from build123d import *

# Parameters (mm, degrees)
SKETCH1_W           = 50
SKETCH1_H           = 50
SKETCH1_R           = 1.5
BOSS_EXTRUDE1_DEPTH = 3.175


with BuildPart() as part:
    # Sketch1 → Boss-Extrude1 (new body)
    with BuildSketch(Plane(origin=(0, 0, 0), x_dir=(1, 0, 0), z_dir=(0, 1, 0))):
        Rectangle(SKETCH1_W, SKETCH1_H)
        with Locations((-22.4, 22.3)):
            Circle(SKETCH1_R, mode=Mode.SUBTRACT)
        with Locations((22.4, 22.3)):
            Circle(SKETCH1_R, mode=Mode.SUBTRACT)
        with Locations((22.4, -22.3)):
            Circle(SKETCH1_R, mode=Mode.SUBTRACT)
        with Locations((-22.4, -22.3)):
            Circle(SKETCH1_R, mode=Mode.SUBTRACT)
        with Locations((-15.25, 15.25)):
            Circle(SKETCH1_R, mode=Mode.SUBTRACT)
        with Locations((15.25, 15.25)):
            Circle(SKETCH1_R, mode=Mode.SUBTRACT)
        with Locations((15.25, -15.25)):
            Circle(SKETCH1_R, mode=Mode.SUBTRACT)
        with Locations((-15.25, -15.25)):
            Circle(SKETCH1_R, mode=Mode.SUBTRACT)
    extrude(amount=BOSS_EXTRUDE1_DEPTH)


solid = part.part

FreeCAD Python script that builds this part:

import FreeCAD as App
import Part
import Sketcher


def add_polygon(sketch, points):
    """Adds a closed chain of lines whose ends are joined by coincident constraints."""
    first, n = sketch.GeometryCount, len(points)
    for a, b in zip(points, points[1:] + points[:1]):
        sketch.addGeometry(Part.LineSegment(App.Vector(*a, 0), App.Vector(*b, 0)), False)
    for i in range(n):
        sketch.addConstraint(Sketcher.Constraint("Coincident", first + i, 2, first + (i + 1) % n, 1))

doc = App.newDocument("Part")
params = doc.addObject("Spreadsheet::Sheet", "Params")
for row, (alias, value) in enumerate([
    ("sketch1_diameter", "3 mm"),
    ("sketch1_width", "50 mm"),
    ("pad1_length", "3.175 mm"),
], start=1):
    params.set(f"A{row}", alias)
    params.set(f"B{row}", "=" + value)
    params.setAlias(f"B{row}", alias)

body = doc.addObject("PartDesign::Body", "Body")

# Sketch on XZ plane
sketch1 = doc.addObject("Sketcher::SketchObject", "Sketch")
body.addObject(sketch1)
sketch1.AttachmentSupport = (doc.XZ_Plane, [""])
sketch1.MapMode = "FlatFace"
add_polygon(sketch1, [(-25, -25), (-25, 25), (25, 25), (25, -25)])  # lines 0-3
sketch1.addGeometry(Part.Circle(App.Vector(-22.4, 22.3, 0), App.Vector(0, 0, 1), 1.5), False)  # 4
sketch1.addGeometry(Part.Circle(App.Vector(-15.2, 15.2, 0), App.Vector(0, 0, 1), 1.5), False)  # 5
sketch1.addGeometry(Part.Circle(App.Vector(22.4, 22.3, 0), App.Vector(0, 0, 1), 1.5), False)  # 6
sketch1.addGeometry(Part.Circle(App.Vector(15.2, 15.2, 0), App.Vector(0, 0, 1), 1.5), False)  # 7
sketch1.addGeometry(Part.Circle(App.Vector(-15.2, -15.2, 0), App.Vector(0, 0, 1), 1.5), False)  # 8
sketch1.addGeometry(Part.Circle(App.Vector(-22.4, -22.3, 0), App.Vector(0, 0, 1), 1.5), False)  # 9
sketch1.addGeometry(Part.Circle(App.Vector(15.2, -15.2, 0), App.Vector(0, 0, 1), 1.5), False)  # 10
sketch1.addGeometry(Part.Circle(App.Vector(22.4, -22.3, 0), App.Vector(0, 0, 1), 1.5), False)  # 11
sketch1.addConstraint([
    Sketcher.Constraint("Vertical", 0),
    Sketcher.Constraint("Horizontal", 1),
    Sketcher.Constraint("Vertical", 2),
    Sketcher.Constraint("Horizontal", 3),
    Sketcher.Constraint("Equal", 4, 5),
    Sketcher.Constraint("Equal", 5, 6),
    Sketcher.Constraint("Equal", 6, 7),
    Sketcher.Constraint("Equal", 7, 8),
    Sketcher.Constraint("Equal", 8, 9),
    Sketcher.Constraint("Equal", 9, 10),
    Sketcher.Constraint("Equal", 10, 11),
    Sketcher.Constraint("Symmetric", 7, 3, 8, 3, -1, 1),
    Sketcher.Constraint("Symmetric", 6, 3, 9, 3, -1, 1),
    Sketcher.Constraint("Symmetric", 5, 3, 10, 3, -1, 1),
    Sketcher.Constraint("Symmetric", 4, 3, 11, 3, -1, 1),
    Sketcher.Constraint("Symmetric", 0, 2, 2, 2, -1, 1),
    Sketcher.Constraint("Symmetric", 4, 3, 6, 3, -2),
    Sketcher.Constraint("Symmetric", 5, 3, 7, 3, -2),
    Sketcher.Constraint("Equal", 3, 0),
    Sketcher.Constraint("Diameter", 4, 3.0),
    Sketcher.Constraint("DistanceX", 1, 1, 1, 2, 50.0),
    Sketcher.Constraint("DistanceX", 4, 3, -1, 1, 22.4),
    Sketcher.Constraint("DistanceY", -1, 1, 4, 3, 22.3),
    Sketcher.Constraint("DistanceX", 5, 3, 7, 3, 30.5),
    Sketcher.Constraint("DistanceY", 8, 3, 5, 3, 30.5),
])
sketch1.setExpression("Constraints[23]", "Params.sketch1_diameter")
sketch1.setExpression("Constraints[24]", "Params.sketch1_width")
pad1 = doc.addObject("PartDesign::Pad", "Pad")
body.addObject(pad1)
pad1.Profile = sketch1
pad1.setExpression("Length", "Params.pad1_length")
pad1.Reversed = True

doc.recompute()
